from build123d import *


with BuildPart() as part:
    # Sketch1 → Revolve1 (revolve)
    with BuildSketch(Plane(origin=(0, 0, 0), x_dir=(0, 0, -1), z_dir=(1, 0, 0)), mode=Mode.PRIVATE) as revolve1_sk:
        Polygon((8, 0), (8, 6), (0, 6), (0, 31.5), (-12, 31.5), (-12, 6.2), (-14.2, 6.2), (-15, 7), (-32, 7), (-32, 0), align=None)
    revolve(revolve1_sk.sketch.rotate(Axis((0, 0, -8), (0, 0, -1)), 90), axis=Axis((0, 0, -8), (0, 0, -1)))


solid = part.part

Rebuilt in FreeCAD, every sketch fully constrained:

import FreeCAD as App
import Part
import Sketcher
from FreeCAD import Vector
Q = App.Units.Quantity


def add_polygon(sketch, points):
    """Adds a closed chain of lines whose ends are joined by coincident constraints."""
    first, n = sketch.GeometryCount, len(points)
    for a, b in zip(points, points[1:] + points[:1]):
        sketch.addGeometry(Part.LineSegment(App.Vector(*a, 0), App.Vector(*b, 0)), False)
    for i in range(n):
        sketch.addConstraint(Sketcher.Constraint("Coincident", first + i, 2, first + (i + 1) % n, 1))

doc = App.newDocument("Part")
params = doc.addObject("Spreadsheet::Sheet", "Params")
for row, (alias, value) in enumerate([
    ("sketch1_width", "6 mm"),
    ("sketch1_width2", "7 mm"),
    ("sketch1_height", "8 mm"),
    ("sketch1_height2", "12 mm"),
    ("sketch1_height3", "17 mm"),
    ("revolution_angle", "360 deg"),
], start=1):
    params.set(f"A{row}", alias)
    params.set(f"B{row}", "=" + value)
    params.setAlias(f"B{row}", alias)

body = doc.addObject("PartDesign::Body", "Body")

# Sketch on YZ plane
sketch1 = doc.addObject("Sketcher::SketchObject", "Sketch")
body.addObject(sketch1)
sketch1.AttachmentSupport = (doc.YZ_Plane, [""])
sketch1.MapMode = "FlatFace"
add_polygon(sketch1, [(0, -8), (6, -8), (6, 0), (31.5, 0), (31.5, 12), (6.2, 12), (6.2, 14.2), (7, 15), (7, 32), (0, 32)])  # lines 0-9
sketch1.addConstraint([
    Sketcher.Constraint("Horizontal", 0),
    Sketcher.Constraint("Vertical", 1),
    Sketcher.Constraint("Horizontal", 2),
    Sketcher.Constraint("Vertical", 3),
    Sketcher.Constraint("Horizontal", 4),
    Sketcher.Constraint("Vertical", 5),
    Sketcher.Constraint("Vertical", 7),
    Sketcher.Constraint("Horizontal", 8),
    Sketcher.Constraint("Vertical", 9),
    Sketcher.Constraint("PointOnObject", 1, 2, -1),
    Sketcher.Constraint("PointOnObject", 8, 2, -2),
    Sketcher.Constraint("DistanceX", 0, 1, 0, 2, Q("6 mm")),
    Sketcher.Constraint("DistanceX", 8, 2, 8, 1, Q("7 mm")),
    Sketcher.Constraint("DistanceY", 1, 1, 1, 2, Q("8 mm")),
    Sketcher.Constraint("DistanceY", 3, 1, 3, 2, Q("12 mm")),
    Sketcher.Constraint("DistanceY", 7, 1, 7, 2, Q("17 mm")),
    Sketcher.Constraint("DistanceY", 9, 2, 9, 1, Q("40 mm")),
    Sketcher.Constraint("Angle", 6, Q("45 deg")),
    Sketcher.Constraint("DistanceX", 2, 1, 2, 2, Q("25.5 mm")),
    Sketcher.Constraint("DistanceX", 4, 2, 4, 1, Q("25.3 mm")),
])
sketch1.setExpression("Constraints[21]", "Params.sketch1_width")
sketch1.setExpression("Constraints[22]", "Params.sketch1_width2")
sketch1.setExpression("Constraints[23]", "Params.sketch1_height")
sketch1.setExpression("Constraints[24]", "Params.sketch1_height2")
sketch1.setExpression("Constraints[25]", "Params.sketch1_height3")
revolution = doc.addObject("PartDesign::Revolution", "Revolution")
body.addObject(revolution)
revolution.Profile = sketch1
revolution.ReferenceAxis = (sketch1, ["V_Axis"])
revolution.setExpression("Angle", "Params.revolution_angle")

doc.recompute()
